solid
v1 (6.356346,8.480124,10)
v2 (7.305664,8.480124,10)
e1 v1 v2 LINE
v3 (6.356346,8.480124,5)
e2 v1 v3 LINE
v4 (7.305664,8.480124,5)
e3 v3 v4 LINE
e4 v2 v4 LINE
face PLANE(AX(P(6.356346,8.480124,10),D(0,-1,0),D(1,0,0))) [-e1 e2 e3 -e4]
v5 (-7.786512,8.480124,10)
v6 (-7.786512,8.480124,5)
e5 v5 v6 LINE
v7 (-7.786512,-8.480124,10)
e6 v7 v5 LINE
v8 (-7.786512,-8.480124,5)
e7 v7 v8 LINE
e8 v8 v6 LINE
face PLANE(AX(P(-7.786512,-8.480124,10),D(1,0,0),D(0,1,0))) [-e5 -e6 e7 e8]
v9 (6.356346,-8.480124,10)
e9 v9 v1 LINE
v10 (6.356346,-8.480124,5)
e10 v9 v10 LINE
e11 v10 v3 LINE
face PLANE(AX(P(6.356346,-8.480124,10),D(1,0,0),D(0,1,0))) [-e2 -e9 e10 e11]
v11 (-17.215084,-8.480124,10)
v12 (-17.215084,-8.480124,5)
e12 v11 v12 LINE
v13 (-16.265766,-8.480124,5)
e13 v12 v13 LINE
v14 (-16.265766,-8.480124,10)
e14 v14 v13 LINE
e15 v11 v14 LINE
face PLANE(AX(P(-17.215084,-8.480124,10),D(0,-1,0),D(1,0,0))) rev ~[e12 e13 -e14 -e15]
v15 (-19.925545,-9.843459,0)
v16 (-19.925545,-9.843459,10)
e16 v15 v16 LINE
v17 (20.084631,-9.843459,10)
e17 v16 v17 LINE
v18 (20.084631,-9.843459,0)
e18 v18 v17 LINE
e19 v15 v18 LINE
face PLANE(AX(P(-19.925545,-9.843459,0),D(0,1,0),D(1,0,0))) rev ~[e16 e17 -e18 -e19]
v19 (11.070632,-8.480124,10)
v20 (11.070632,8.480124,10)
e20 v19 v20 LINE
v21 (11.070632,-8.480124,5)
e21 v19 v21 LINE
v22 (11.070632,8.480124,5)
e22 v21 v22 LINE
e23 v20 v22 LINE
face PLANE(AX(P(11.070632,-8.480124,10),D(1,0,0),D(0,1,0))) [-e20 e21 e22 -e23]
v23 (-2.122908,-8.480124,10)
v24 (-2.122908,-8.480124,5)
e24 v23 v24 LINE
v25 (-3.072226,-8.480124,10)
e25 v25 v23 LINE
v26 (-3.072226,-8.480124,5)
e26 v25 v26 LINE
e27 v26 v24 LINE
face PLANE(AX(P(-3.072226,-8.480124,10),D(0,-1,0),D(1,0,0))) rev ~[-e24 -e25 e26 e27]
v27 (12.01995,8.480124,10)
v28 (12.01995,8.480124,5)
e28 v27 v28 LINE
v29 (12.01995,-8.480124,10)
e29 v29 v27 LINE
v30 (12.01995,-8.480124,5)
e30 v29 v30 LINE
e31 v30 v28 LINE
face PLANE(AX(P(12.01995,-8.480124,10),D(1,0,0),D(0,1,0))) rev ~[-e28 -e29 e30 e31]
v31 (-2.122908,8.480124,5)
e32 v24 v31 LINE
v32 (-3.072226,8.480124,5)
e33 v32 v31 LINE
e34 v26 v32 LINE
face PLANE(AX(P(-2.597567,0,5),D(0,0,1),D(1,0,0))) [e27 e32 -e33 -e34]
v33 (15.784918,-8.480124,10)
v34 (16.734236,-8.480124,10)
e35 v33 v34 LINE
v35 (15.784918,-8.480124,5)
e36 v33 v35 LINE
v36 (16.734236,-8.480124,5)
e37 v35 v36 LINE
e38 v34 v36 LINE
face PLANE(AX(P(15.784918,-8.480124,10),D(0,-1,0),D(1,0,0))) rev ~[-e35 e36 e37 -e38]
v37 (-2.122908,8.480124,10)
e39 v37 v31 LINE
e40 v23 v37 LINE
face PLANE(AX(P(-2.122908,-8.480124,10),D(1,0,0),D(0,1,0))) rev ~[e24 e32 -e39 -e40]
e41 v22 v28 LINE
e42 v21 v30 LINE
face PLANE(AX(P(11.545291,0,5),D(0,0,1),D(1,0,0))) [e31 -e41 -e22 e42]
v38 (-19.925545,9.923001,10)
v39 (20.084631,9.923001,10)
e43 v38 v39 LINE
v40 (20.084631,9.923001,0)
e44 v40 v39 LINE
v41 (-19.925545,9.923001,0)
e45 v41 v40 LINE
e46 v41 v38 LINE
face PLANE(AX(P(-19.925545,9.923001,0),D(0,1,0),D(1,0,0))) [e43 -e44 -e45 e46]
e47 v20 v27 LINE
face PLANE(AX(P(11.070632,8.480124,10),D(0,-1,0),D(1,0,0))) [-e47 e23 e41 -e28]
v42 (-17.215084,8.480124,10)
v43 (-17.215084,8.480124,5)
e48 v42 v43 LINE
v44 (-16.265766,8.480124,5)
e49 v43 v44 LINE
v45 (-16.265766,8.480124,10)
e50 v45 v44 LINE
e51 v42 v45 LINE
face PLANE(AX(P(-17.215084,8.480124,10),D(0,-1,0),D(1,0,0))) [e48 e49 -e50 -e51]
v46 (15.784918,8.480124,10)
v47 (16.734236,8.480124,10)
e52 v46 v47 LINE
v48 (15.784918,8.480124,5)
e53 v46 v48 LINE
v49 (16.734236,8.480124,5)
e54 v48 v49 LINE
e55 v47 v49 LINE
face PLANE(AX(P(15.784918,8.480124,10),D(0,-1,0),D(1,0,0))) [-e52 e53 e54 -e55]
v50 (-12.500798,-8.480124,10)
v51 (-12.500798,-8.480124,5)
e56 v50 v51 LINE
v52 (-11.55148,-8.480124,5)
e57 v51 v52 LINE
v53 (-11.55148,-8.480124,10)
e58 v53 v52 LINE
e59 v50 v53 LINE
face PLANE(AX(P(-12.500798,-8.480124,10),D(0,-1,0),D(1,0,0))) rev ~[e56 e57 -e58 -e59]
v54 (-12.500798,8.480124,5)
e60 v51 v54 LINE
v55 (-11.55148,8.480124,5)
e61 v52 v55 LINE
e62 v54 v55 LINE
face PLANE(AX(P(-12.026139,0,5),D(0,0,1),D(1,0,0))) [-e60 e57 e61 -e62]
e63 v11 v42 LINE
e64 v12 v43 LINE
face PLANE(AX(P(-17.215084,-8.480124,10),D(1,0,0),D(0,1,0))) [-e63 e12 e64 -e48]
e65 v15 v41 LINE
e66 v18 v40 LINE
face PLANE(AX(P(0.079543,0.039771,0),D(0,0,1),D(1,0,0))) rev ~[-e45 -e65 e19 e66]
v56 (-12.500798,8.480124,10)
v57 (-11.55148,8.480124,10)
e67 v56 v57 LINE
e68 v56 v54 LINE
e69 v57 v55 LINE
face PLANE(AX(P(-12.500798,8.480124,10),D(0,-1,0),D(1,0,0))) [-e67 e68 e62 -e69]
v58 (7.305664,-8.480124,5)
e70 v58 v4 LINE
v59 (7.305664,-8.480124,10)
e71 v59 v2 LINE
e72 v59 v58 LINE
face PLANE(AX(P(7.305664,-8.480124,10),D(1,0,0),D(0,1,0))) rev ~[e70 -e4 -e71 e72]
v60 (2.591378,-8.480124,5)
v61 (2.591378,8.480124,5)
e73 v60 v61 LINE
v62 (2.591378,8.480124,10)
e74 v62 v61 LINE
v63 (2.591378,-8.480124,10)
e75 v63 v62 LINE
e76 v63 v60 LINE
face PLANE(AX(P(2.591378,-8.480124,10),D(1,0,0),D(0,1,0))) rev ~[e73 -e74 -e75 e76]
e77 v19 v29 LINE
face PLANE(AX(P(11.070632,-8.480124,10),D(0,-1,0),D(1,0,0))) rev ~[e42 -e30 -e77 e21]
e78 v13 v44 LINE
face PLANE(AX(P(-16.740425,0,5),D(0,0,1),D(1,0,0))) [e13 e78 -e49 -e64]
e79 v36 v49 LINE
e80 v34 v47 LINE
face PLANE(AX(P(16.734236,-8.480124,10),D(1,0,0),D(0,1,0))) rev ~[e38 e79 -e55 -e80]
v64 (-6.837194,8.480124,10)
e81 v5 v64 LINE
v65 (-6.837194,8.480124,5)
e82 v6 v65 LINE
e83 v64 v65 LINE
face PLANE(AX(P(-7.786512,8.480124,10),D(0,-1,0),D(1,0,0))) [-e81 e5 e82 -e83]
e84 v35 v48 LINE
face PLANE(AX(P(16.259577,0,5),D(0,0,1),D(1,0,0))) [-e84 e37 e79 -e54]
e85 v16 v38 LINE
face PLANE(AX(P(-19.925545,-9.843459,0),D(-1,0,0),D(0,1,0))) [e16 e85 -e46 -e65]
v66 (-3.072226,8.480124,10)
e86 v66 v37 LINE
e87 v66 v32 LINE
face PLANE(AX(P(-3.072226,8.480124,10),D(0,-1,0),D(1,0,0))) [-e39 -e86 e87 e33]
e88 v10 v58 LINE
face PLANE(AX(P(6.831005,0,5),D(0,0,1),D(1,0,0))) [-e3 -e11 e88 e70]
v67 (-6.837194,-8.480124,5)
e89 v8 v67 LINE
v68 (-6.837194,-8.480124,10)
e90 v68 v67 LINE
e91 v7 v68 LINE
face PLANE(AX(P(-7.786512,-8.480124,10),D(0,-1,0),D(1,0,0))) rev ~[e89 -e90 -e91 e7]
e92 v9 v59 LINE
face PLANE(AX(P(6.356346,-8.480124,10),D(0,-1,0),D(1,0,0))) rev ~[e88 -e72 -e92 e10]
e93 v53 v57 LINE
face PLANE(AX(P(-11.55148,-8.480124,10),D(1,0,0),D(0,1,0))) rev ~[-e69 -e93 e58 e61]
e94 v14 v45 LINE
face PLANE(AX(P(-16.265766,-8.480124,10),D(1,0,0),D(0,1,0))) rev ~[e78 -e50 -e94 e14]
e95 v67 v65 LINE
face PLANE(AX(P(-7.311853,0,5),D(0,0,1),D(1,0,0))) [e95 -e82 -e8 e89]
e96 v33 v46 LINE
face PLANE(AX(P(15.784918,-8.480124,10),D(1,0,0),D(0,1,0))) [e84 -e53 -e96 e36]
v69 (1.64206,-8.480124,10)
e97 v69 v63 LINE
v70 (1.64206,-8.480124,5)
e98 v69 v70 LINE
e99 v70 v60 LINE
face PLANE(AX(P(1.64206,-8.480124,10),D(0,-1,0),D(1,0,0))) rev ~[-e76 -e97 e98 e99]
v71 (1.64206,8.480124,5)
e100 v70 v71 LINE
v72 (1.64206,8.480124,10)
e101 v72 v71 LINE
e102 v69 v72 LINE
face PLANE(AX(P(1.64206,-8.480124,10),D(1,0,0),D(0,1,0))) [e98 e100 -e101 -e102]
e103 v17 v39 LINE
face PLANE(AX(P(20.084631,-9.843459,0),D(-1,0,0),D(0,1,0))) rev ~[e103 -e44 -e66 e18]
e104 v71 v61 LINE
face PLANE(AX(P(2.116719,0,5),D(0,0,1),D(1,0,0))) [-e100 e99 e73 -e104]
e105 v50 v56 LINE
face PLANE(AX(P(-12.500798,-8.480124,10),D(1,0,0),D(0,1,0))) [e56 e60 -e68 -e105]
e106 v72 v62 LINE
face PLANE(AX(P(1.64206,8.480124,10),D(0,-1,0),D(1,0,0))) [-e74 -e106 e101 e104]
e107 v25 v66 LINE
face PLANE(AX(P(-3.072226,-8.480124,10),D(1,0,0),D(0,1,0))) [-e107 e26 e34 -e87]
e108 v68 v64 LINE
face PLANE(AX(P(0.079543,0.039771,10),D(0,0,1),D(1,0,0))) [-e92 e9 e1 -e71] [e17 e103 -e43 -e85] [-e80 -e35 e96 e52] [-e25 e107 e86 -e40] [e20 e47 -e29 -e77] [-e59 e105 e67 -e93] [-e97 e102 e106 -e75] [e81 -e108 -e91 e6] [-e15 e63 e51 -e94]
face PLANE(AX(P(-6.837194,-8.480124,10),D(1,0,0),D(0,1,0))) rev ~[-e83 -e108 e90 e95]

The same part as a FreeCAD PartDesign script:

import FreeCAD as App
import Part
import Sketcher
Q = App.Units.Quantity

doc = App.newDocument("Part")
body = doc.addObject("PartDesign::Body", "Body")

# Sketch on XY plane
sketch1 = body.newObject("Sketcher::SketchObject", "Sketch")
sketch1.AttachmentSupport = (doc.getObject("XY_Plane"), [""])
sketch1.MapMode = "FlatFace"
sketch1.addGeometry(Part.LineSegment(App.Vector(-20, 10, 0), App.Vector(-20, -10, 0)), False)
sketch1.addGeometry(Part.LineSegment(App.Vector(-20, -10, 0), App.Vector(20, -10, 0)), False)
sketch1.addGeometry(Part.LineSegment(App.Vector(20, -10, 0), App.Vector(20, 10, 0)), False)
sketch1.addGeometry(Part.LineSegment(App.Vector(20, 10, 0), App.Vector(-20, 10, 0)), False)
sketch1.addConstraint(Sketcher.Constraint("Coincident", 0, 2, 1, 1))
sketch1.addConstraint(Sketcher.Constraint("Coincident", 1, 2, 2, 1))
sketch1.addConstraint(Sketcher.Constraint("Coincident", 2, 2, 3, 1))
sketch1.addConstraint(Sketcher.Constraint("Coincident", 3, 2, 0, 1))
sketch1.addConstraint(Sketcher.Constraint("Vertical", 0))
sketch1.addConstraint(Sketcher.Constraint("Horizontal", 1))
sketch1.addConstraint(Sketcher.Constraint("Vertical", 2))
sketch1.addConstraint(Sketcher.Constraint("Horizontal", 3))
sketch1.addConstraint(Sketcher.Constraint("DistanceY", -1, 1, 2, 2, Q("9.923001 mm")))
sketch1.addConstraint(Sketcher.Constraint("DistanceY", 0, 2, 0, 1, Q("19.766459 mm")))
sketch1.addConstraint(Sketcher.Constraint("DistanceX", 1, 1, 1, 2, Q("40.010176 mm")))
sketch1.addConstraint(Sketcher.Constraint("DistanceX", -1, 1, 1, 2, Q("20.084631 mm")))
pad1 = body.newObject("PartDesign::Pad", "Pad")
pad1.Profile = sketch1
pad1.Length = 10

# Sketch on XY plane
sketch2 = body.newObject("Sketcher::SketchObject", "Sketch001")
sketch2.AttachmentSupport = (doc.getObject("XY_Plane"), [""])
sketch2.MapMode = "FlatFace"
sketch2.AttachmentOffset = App.Placement(App.Vector(0, 0, 10), App.Rotation())
sketch2.addGeometry(Part.LineSegment(App.Vector(-17.2, 8.5, 0), App.Vector(-17.2, -8.5, 0)), False)
sketch2.addGeometry(Part.LineSegment(App.Vector(-17.2, -8.5, 0), App.Vector(-16.3, -8.5, 0)), False)
sketch2.addGeometry(Part.LineSegment(App.Vector(-16.3, -8.5, 0), App.Vector(-16.3, 8.5, 0)), False)
sketch2.addGeometry(Part.LineSegment(App.Vector(-16.3, 8.5, 0), App.Vector(-17.2, 8.5, 0)), False)
sketch2.addConstraint(Sketcher.Constraint("Coincident", 0, 2, 1, 1))
sketch2.addConstraint(Sketcher.Constraint("Coincident", 1, 2, 2, 1))
sketch2.addConstraint(Sketcher.Constraint("Coincident", 2, 2, 3, 1))
sketch2.addConstraint(Sketcher.Constraint("Coincident", 3, 2, 0, 1))
sketch2.addConstraint(Sketcher.Constraint("Vertical", 0))
sketch2.addConstraint(Sketcher.Constraint("Horizontal", 1))
sketch2.addConstraint(Sketcher.Constraint("Vertical", 2))
sketch2.addConstraint(Sketcher.Constraint("Horizontal", 3))
sketch2.addConstraint(Sketcher.Constraint("DistanceX", 1, 1, 1, 2, Q("0.949318 mm")))
sketch2.addConstraint(Sketcher.Constraint("DistanceY", 0, 2, 0, 1, Q("16.960248 mm")))
sketch2.addConstraint(Sketcher.Constraint("DistanceX", 0, 2, -1, 1, Q("17.215084 mm")))
sketch2.addConstraint(Sketcher.Constraint("DistanceY", 0, 2, -1, 1, Q("8.480124 mm")))
pocket1 = body.newObject("PartDesign::Pocket", "Pocket")
pocket1.Profile = sketch2
pocket1.Length = 5
doc.recompute()

linearpattern = body.newObject("PartDesign::LinearPattern", "LinearPattern")
linearpattern.Originals = [pocket1]
linearpattern.Direction = (doc.getObject("X_Axis"), [""])
linearpattern.Mode = "offset"
linearpattern.Offset = 4.714286
linearpattern.Occurrences = 8
body.Tip = linearpattern

doc.recompute()
